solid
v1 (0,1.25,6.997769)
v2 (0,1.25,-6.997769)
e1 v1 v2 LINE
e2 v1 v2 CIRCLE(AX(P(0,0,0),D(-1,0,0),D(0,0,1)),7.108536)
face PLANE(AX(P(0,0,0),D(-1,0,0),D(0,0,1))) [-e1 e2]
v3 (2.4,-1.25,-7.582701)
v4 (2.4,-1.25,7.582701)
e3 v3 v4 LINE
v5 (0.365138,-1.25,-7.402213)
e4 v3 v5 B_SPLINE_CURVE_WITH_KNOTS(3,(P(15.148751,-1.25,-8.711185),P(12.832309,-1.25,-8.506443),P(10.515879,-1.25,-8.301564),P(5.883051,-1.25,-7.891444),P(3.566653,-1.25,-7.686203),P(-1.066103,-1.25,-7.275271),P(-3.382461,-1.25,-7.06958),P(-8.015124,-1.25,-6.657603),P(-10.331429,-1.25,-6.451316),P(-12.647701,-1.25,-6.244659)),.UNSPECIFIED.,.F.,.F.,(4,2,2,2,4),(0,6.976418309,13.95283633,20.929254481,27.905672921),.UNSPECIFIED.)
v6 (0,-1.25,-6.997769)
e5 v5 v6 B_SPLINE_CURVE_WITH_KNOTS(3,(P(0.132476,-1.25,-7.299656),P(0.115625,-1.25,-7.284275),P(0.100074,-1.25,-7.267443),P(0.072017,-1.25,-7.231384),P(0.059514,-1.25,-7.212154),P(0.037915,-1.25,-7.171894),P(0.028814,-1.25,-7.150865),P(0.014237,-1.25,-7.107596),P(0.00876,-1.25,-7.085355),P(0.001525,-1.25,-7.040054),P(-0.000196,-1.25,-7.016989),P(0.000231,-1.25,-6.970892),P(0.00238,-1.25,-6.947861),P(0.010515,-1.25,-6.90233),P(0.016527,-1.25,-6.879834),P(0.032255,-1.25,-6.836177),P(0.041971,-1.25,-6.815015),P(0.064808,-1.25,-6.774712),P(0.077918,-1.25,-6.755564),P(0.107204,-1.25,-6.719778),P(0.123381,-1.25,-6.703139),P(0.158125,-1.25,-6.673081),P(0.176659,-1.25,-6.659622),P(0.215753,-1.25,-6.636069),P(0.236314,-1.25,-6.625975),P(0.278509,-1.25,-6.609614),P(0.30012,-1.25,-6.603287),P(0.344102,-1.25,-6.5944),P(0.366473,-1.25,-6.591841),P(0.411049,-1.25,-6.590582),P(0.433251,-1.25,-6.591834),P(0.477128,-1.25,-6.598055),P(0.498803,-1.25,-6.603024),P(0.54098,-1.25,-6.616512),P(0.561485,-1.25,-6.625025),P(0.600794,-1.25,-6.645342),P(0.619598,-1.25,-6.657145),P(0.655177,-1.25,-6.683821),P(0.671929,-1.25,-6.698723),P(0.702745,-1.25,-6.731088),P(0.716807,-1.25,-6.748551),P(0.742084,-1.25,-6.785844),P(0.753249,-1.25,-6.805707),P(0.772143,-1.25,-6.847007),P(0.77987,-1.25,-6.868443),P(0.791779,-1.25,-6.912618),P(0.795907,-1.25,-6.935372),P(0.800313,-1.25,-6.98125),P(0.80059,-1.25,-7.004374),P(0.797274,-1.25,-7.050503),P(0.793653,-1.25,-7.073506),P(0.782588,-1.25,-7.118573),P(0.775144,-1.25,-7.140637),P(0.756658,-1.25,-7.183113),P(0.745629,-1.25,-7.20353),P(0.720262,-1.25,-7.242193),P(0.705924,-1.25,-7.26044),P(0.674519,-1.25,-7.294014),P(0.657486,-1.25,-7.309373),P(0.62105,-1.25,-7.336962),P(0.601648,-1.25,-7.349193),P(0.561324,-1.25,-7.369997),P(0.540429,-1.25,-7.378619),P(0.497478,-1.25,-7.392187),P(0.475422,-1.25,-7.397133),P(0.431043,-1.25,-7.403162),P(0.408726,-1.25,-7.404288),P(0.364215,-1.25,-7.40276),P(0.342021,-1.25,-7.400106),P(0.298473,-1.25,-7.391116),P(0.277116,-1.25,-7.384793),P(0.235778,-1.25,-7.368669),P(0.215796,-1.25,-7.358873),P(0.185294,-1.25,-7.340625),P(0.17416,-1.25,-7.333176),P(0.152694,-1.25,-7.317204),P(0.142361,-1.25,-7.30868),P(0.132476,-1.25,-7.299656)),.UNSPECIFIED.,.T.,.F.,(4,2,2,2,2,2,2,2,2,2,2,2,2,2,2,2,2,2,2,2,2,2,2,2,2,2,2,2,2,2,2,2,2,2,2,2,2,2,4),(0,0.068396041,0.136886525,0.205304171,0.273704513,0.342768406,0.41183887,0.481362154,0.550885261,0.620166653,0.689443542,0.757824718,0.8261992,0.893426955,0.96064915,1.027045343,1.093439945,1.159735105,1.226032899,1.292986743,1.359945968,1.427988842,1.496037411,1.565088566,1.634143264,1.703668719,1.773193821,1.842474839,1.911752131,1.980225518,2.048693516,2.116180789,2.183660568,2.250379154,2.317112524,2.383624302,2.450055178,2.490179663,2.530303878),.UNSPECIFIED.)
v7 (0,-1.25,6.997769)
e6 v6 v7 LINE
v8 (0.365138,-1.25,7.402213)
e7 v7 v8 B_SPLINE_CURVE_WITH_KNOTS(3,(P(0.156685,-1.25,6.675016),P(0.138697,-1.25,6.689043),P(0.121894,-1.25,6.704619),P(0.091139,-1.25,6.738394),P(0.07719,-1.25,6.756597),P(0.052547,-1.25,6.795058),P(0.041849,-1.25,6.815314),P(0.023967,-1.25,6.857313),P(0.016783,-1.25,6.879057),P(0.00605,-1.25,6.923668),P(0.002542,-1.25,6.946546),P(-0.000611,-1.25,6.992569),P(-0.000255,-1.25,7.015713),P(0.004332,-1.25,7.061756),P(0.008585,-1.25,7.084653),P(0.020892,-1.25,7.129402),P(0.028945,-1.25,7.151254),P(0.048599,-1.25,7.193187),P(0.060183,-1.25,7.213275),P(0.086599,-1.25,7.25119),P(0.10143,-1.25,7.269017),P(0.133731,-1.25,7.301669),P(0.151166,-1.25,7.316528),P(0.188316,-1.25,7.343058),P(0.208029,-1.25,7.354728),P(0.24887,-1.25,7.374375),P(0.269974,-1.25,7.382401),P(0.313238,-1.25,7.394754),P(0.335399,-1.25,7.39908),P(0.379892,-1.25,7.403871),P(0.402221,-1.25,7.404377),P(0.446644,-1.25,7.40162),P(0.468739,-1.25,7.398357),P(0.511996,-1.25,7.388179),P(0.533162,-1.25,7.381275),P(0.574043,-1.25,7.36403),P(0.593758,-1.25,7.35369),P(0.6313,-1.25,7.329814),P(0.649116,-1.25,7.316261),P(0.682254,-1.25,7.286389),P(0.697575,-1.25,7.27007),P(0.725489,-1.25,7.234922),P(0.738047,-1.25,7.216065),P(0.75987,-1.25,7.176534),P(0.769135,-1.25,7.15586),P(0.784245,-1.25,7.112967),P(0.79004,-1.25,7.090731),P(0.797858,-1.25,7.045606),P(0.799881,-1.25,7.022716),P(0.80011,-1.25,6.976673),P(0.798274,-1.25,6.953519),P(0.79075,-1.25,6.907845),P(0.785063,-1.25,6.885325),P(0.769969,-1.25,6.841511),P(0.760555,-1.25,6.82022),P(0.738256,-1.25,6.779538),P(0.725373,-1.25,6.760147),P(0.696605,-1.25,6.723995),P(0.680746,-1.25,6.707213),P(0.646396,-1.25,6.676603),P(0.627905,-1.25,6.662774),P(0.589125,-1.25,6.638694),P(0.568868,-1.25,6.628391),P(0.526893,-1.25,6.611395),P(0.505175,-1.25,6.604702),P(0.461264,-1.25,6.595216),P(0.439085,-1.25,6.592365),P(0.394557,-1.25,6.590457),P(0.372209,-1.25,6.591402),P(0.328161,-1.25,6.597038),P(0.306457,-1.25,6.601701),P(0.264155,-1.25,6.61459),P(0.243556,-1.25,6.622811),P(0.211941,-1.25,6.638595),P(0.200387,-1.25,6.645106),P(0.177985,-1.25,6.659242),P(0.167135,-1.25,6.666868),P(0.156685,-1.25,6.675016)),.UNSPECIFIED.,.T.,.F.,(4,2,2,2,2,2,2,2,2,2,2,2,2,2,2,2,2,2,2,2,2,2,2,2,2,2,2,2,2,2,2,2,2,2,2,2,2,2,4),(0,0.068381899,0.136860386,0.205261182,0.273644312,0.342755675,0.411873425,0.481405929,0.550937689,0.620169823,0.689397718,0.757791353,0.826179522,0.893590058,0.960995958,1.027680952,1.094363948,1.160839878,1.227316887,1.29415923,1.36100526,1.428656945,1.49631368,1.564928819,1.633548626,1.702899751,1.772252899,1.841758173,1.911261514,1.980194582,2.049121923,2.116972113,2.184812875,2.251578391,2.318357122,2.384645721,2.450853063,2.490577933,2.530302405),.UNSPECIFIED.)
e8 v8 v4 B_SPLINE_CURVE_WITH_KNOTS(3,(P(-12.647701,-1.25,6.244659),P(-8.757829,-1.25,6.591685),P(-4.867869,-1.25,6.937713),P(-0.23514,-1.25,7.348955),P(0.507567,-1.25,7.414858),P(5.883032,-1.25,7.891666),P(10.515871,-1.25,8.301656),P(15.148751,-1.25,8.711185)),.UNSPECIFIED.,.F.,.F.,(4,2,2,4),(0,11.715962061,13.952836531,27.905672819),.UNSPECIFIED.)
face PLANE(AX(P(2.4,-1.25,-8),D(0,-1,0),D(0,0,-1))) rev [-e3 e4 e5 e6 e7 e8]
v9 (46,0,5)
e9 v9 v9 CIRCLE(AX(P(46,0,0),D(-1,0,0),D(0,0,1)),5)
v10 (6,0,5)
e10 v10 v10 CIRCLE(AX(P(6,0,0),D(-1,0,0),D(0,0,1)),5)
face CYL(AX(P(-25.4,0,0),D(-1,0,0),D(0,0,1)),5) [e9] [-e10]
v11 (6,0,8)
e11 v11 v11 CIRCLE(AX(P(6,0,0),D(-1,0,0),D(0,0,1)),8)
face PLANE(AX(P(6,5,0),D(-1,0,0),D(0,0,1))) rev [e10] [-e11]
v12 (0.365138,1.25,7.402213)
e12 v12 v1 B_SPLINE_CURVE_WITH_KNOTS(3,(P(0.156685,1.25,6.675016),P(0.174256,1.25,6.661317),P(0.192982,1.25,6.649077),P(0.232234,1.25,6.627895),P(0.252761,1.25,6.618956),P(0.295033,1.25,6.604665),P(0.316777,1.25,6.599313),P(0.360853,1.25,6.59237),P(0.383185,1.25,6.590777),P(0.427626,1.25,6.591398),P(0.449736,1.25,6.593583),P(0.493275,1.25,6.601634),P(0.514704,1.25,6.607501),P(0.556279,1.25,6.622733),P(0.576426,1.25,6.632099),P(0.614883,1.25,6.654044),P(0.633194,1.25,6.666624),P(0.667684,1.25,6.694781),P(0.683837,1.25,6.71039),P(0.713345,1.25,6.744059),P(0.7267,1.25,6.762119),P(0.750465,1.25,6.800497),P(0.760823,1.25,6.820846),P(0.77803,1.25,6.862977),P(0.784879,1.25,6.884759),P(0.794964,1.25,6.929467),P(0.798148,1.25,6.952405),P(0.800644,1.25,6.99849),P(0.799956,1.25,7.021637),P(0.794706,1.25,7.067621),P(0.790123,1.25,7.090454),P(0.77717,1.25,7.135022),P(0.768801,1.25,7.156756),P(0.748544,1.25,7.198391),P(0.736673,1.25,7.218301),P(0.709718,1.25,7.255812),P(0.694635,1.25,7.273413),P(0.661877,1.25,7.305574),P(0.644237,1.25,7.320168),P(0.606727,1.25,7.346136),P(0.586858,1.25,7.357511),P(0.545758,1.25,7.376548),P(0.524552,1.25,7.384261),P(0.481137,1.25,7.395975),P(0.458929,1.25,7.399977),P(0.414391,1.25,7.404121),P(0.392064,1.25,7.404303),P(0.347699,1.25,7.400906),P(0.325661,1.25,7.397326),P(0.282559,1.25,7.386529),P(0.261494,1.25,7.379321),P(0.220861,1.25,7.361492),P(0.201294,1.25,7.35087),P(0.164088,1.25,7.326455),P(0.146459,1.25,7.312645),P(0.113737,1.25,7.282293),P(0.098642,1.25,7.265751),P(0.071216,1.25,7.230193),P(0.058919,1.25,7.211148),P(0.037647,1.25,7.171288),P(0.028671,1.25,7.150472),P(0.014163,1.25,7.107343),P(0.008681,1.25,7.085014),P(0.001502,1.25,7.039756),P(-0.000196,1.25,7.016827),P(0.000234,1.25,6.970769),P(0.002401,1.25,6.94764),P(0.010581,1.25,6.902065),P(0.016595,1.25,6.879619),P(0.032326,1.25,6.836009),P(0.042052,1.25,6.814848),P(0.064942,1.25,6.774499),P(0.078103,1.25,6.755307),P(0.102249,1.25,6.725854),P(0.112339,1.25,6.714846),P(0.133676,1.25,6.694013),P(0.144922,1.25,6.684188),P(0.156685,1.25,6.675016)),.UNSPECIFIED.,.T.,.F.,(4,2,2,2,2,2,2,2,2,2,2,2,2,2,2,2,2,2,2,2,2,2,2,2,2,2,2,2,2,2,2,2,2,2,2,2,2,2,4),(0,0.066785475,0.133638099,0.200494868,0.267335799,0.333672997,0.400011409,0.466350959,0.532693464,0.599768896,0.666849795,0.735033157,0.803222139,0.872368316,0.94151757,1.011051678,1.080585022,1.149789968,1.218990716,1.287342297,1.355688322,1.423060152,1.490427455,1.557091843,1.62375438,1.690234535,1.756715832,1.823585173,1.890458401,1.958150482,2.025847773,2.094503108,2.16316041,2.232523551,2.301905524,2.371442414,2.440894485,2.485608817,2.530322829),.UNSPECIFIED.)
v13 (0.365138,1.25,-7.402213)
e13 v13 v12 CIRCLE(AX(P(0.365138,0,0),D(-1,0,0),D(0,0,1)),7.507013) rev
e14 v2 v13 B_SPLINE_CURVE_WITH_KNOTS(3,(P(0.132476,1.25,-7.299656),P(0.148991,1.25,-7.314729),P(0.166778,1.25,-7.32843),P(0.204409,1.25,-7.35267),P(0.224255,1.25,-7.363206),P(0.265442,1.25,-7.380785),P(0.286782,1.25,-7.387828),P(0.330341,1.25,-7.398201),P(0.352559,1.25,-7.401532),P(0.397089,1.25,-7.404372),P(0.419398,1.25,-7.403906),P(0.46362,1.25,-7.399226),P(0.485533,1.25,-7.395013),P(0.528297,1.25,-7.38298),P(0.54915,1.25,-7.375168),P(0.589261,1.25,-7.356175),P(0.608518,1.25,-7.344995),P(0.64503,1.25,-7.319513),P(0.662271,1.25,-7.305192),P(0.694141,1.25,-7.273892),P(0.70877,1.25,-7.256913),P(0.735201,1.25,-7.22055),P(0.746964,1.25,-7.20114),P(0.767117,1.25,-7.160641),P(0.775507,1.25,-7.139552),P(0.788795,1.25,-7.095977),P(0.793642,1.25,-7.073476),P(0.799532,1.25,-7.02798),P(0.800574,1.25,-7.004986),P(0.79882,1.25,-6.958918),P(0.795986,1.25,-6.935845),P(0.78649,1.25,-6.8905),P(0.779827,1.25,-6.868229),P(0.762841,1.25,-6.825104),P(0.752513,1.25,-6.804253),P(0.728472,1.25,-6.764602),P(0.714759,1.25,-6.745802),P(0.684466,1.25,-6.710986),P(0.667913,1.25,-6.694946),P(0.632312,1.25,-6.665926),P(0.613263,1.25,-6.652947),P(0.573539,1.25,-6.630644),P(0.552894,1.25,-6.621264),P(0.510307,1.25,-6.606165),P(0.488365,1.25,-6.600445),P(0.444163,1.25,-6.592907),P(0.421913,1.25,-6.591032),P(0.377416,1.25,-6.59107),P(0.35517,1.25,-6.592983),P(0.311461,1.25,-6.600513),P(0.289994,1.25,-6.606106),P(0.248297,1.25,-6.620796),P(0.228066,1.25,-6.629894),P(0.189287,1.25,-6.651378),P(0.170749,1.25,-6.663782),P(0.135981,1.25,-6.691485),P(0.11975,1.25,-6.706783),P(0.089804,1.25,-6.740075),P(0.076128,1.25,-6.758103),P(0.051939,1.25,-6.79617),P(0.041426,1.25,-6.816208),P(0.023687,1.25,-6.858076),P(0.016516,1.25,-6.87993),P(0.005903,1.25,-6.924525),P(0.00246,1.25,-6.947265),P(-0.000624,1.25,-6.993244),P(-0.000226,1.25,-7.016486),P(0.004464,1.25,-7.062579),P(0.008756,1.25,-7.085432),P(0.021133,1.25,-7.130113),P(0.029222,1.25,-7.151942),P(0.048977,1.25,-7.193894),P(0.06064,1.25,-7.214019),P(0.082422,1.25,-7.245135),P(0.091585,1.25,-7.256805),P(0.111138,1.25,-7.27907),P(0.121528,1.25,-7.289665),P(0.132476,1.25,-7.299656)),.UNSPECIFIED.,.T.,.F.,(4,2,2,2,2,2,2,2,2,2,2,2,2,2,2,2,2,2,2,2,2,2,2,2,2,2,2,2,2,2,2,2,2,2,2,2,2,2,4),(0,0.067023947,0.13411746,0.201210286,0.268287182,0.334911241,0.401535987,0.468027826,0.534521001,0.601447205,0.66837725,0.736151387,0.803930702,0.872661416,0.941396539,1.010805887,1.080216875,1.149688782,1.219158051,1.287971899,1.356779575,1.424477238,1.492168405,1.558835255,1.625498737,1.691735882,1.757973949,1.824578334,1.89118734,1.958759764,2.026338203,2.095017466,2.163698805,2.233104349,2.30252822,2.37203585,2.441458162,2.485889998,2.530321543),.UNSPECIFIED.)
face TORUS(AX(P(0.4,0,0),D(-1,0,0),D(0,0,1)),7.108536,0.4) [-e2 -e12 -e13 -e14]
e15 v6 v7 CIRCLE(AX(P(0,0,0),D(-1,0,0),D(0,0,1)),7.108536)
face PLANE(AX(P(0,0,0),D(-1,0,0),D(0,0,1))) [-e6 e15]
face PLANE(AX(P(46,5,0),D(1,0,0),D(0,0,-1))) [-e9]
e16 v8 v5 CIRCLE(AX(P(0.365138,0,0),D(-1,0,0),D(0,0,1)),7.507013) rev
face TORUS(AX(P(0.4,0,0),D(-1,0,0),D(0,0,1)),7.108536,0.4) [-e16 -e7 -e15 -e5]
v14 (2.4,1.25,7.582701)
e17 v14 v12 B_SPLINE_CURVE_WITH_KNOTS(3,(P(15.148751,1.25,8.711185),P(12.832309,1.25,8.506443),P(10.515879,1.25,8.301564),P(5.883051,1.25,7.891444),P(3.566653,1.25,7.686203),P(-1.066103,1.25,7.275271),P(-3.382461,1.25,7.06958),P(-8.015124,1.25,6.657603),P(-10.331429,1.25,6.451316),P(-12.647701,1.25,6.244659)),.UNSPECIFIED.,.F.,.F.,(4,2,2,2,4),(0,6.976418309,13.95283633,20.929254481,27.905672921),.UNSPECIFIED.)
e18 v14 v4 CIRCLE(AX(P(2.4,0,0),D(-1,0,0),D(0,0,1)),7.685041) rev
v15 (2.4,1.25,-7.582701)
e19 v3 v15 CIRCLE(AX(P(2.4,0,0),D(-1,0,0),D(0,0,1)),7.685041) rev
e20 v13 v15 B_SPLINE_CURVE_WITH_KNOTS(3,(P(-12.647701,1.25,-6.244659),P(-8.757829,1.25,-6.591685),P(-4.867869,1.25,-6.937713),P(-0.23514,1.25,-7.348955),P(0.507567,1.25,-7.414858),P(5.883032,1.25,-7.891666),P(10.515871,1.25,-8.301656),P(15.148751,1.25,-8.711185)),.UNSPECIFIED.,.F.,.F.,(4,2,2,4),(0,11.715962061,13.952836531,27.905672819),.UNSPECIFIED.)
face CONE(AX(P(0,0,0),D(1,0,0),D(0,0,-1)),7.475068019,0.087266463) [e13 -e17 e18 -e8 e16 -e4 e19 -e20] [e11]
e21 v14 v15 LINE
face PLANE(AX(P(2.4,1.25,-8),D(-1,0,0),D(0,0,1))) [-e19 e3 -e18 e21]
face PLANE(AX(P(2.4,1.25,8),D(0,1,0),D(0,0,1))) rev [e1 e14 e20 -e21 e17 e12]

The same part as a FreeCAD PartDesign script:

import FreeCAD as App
import Part
import Sketcher
from FreeCAD import Vector
Q = App.Units.Quantity


def edges_at(feature, points):
    """Names of the edges that pass closest to the given points."""
    edges = feature.Shape.Edges
    near = lambda p: min(range(len(edges)), key=lambda i: edges[i].distToShape(Part.Vertex(*p))[0])
    return sorted({f"Edge{near(p) + 1}" for p in points})

doc = App.newDocument("Part")
params = doc.addObject("Spreadsheet::Sheet", "Params")
for row, (alias, value) in enumerate([
    ("sketch1_width", "46 mm"),
    ("sketch1_width2", "40 mm"),
    ("sketch1_height", "3 mm"),
    ("sketch1_height2", "5 mm"),
    ("revolution_angle", "360 deg"),
    ("fillet_radius", "0.4 mm"),
    ("sketch2_height", "16 mm"),
    ("sketch2_width", "2.5 mm"),
    ("pocket1_length", "2.4 mm"),
], start=1):
    params.set(f"A{row}", alias)
    params.set(f"B{row}", "=" + value)
    params.setAlias(f"B{row}", alias)

body = doc.addObject("PartDesign::Body", "Body")

sketch1 = body.newObject("Sketcher::SketchObject", "Sketch")
sketch1.AttachmentSupport = (doc.getObject("XY_Plane"), [""])
sketch1.MapMode = "FlatFace"
sketch1.addGeometry([
    Part.LineSegment(Vector(6, 5, 0), Vector(6, 8, 0)),
    Part.LineSegment(Vector(6, 8, 0), Vector(0, 7.5, 0)),
    Part.LineSegment(Vector(0, 7.5, 0), Vector(0, 0, 0)),
    Part.LineSegment(Vector(0, 0, 0), Vector(46, 0, 0)),
    Part.LineSegment(Vector(46, 0, 0), Vector(46, 5, 0)),
    Part.LineSegment(Vector(46, 5, 0), Vector(6, 5, 0)),
], False)
sketch1.addConstraint([
    Sketcher.Constraint("Coincident", 0, 2, 1, 1),
    Sketcher.Constraint("Coincident", 1, 2, 2, 1),
    Sketcher.Constraint("Coincident", 2, 2, 3, 1),
    Sketcher.Constraint("Coincident", 3, 2, 4, 1),
    Sketcher.Constraint("Coincident", 4, 2, 5, 1),
    Sketcher.Constraint("Coincident", 5, 2, 0, 1),
    Sketcher.Constraint("Vertical", 0),
    Sketcher.Constraint("Vertical", 2),
    Sketcher.Constraint("Horizontal", 3),
    Sketcher.Constraint("Vertical", 4),
    Sketcher.Constraint("Horizontal", 5),
    Sketcher.Constraint("Coincident", 2, 2, -1, 1),
    Sketcher.Constraint("DistanceX", 3, 1, 3, 2, 46.0),
    Sketcher.Constraint("DistanceX", 5, 2, 5, 1, 40.0),
    Sketcher.Constraint("DistanceY", 0, 1, 0, 2, 3.0),
    Sketcher.Constraint("DistanceY", 4, 1, 4, 2, 5.0),
    Sketcher.Constraint("Angle", 1, Q("-175 deg")),
])
sketch1.setExpression("Constraints[12]", "Params.sketch1_width")
sketch1.setExpression("Constraints[13]", "Params.sketch1_width2")
sketch1.setExpression("Constraints[14]", "Params.sketch1_height")
sketch1.setExpression("Constraints[15]", "Params.sketch1_height2")
revolution = body.newObject("PartDesign::Revolution", "Revolution")
revolution.Profile = sketch1
revolution.ReferenceAxis = (sketch1, ["H_Axis"])
revolution.setExpression("Angle", "Params.revolution_angle")
doc.recompute()

fillet = body.newObject("PartDesign::Fillet", "Fillet")
fillet.Base = (revolution, edges_at(revolution, [(0, 0, -7.475)]))
fillet.setExpression("Radius", "Params.fillet_radius")

sketch2 = body.newObject("Sketcher::SketchObject", "Sketch001")
sketch2.AttachmentSupport = (doc.getObject("YZ_Plane"), [""])
sketch2.MapMode = "FlatFace"
sketch2.addGeometry([
    Part.LineSegment(Vector(1.2, 8, 0), Vector(-1.2, 8, 0)),
    Part.LineSegment(Vector(-1.2, 8, 0), Vector(-1.2, -8, 0)),
    Part.LineSegment(Vector(-1.2, -8, 0), Vector(1.2, -8, 0)),
    Part.LineSegment(Vector(1.2, -8, 0), Vector(1.2, 8, 0)),
], False)
sketch2.addConstraint([
    Sketcher.Constraint("Coincident", 0, 2, 1, 1),
    Sketcher.Constraint("Coincident", 1, 2, 2, 1),
    Sketcher.Constraint("Coincident", 2, 2, 3, 1),
    Sketcher.Constraint("Coincident", 3, 2, 0, 1),
    Sketcher.Constraint("Horizontal", 0),
    Sketcher.Constraint("Vertical", 1),
    Sketcher.Constraint("Horizontal", 2),
    Sketcher.Constraint("Vertical", 3),
    Sketcher.Constraint("Symmetric", 0, 2, 2, 2, -1, 1),
    Sketcher.Constraint("DistanceY", 1, 2, 1, 1, 16.0),
    Sketcher.Constraint("DistanceX", 0, 2, 0, 1, 2.5),
])
sketch2.setExpression("Constraints[9]", "Params.sketch2_height")
sketch2.setExpression("Constraints[10]", "Params.sketch2_width")
pocket1 = body.newObject("PartDesign::Pocket", "Pocket")
pocket1.Profile = sketch2
pocket1.setExpression("Length", "Params.pocket1_length")
pocket1.Reversed = True

doc.recompute()
